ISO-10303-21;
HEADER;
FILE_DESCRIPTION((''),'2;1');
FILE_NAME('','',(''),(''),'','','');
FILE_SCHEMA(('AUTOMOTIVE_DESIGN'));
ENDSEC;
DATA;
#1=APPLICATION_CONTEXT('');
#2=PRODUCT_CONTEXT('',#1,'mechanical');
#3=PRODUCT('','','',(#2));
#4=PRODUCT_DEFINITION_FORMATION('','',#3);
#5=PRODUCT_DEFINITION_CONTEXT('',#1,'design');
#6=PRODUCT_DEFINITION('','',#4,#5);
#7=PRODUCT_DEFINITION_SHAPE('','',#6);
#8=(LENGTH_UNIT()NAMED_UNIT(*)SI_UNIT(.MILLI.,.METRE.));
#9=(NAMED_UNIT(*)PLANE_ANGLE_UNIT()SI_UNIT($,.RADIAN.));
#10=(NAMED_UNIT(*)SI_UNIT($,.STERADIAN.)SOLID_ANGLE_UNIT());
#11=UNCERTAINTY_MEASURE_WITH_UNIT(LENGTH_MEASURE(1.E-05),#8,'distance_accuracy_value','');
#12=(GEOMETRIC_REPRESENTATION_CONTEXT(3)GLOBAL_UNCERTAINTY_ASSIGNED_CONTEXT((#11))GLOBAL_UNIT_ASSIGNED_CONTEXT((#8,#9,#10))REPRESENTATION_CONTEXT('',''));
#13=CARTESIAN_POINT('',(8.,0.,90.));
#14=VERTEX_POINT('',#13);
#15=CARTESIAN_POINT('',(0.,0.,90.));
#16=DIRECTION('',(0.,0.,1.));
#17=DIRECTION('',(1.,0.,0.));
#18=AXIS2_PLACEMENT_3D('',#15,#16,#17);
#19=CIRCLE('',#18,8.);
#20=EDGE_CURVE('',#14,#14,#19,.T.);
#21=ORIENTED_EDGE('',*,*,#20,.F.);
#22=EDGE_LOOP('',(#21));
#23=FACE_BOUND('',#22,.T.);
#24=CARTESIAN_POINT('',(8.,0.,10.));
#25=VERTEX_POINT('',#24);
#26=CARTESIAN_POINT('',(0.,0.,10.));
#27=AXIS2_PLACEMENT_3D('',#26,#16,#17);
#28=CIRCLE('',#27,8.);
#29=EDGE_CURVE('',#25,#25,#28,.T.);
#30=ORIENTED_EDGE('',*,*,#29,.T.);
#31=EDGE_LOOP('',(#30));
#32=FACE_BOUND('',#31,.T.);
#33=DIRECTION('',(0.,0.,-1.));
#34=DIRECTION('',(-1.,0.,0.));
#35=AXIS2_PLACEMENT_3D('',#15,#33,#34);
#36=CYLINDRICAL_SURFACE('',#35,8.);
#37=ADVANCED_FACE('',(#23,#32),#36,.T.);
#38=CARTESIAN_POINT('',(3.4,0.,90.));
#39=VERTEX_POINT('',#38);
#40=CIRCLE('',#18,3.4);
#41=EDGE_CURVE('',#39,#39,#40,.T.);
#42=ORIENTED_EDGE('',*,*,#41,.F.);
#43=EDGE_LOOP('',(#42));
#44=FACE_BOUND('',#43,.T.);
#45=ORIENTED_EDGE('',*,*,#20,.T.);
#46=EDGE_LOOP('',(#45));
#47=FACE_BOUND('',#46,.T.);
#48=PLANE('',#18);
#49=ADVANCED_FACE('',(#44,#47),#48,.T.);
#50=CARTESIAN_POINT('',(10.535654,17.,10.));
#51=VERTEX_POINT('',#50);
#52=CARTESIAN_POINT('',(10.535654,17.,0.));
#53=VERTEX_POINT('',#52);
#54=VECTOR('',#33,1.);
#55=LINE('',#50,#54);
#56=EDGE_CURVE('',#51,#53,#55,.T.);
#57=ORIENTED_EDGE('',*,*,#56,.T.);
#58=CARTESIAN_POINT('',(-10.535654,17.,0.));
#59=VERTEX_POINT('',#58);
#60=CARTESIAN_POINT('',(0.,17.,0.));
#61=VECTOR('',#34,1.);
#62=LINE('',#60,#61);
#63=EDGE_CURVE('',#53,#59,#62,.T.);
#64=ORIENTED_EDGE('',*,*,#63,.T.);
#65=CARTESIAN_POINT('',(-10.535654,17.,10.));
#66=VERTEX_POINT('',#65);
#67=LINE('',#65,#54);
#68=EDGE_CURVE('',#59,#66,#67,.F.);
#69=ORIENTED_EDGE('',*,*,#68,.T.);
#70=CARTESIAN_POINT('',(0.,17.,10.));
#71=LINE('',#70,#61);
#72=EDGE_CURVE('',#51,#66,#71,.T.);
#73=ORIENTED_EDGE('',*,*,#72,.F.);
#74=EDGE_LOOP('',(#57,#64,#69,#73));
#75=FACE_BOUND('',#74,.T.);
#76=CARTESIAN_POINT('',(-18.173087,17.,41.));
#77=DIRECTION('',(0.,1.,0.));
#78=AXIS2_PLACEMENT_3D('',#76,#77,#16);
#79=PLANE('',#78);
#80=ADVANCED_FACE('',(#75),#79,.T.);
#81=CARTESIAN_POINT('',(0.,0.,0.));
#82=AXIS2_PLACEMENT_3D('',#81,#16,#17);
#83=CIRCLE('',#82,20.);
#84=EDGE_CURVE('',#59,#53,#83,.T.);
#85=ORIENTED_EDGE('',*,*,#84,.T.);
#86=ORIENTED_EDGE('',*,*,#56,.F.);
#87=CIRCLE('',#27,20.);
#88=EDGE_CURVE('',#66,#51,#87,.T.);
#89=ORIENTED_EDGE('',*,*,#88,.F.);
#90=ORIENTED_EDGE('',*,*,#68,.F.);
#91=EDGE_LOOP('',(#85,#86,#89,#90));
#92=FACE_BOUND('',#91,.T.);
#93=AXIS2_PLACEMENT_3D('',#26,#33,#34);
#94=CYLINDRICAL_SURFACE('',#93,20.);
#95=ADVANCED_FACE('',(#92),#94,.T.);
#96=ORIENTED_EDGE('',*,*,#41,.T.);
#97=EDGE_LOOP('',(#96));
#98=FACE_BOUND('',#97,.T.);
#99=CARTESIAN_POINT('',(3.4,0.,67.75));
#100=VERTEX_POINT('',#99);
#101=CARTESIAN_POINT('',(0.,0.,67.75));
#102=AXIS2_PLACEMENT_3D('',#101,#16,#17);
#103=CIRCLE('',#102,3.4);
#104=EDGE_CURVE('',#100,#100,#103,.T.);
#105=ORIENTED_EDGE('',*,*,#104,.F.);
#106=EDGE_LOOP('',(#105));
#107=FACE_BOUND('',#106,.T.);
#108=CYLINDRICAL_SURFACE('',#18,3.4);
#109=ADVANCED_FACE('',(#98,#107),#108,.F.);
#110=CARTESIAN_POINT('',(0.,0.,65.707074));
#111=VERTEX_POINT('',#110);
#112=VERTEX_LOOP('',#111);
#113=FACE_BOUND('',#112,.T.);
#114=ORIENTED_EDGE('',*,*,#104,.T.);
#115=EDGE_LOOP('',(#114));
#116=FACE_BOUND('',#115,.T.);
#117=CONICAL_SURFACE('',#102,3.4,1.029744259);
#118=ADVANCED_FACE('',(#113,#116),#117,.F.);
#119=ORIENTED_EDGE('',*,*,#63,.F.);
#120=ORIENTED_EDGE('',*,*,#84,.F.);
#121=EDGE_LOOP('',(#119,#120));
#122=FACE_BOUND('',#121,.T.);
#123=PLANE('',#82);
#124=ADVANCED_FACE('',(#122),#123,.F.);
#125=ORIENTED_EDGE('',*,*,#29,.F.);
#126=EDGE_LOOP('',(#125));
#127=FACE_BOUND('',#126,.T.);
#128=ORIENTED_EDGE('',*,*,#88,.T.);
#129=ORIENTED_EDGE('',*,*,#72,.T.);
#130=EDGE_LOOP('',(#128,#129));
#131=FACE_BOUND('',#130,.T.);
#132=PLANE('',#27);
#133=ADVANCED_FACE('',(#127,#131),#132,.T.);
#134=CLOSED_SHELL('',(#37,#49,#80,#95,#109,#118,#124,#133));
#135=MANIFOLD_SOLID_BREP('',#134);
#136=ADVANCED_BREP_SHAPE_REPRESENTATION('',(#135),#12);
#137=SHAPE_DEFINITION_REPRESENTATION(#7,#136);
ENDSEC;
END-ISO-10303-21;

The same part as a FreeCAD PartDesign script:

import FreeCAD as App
import Part
import Sketcher

V = App.Vector
Q = App.Units.Quantity


def add_polygon(sketch, points):
    """Adds a closed chain of lines whose ends are joined by coincident constraints."""
    first, n = sketch.GeometryCount, len(points)
    for a, b in zip(points, points[1:] + points[:1]):
        sketch.addGeometry(Part.LineSegment(App.Vector(*a, 0), App.Vector(*b, 0)), False)
    for i in range(n):
        sketch.addConstraint(Sketcher.Constraint("Coincident", first + i, 2, first + (i + 1) % n, 1))

doc = App.newDocument("Part")
body = doc.addObject("PartDesign::Body", "Body")

# Sketch on XY plane
sketch1 = doc.addObject("Sketcher::SketchObject", "Sketch")
body.addObject(sketch1)
sketch1.AttachmentSupport = (doc.XY_Plane, [""])
sketch1.MapMode = "FlatFace"
sketch1.addGeometry(Part.Circle(V(0, 0, 0), V(0, 0, 1), 20), False)
sketch1.addConstraint([
    Sketcher.Constraint("Coincident", 0, 3, -1, 1),
    Sketcher.Constraint("Diameter", 0, Q("40 mm")),
])
pad1 = doc.addObject("PartDesign::Pad", "Pad")
body.addObject(pad1)
pad1.Profile = sketch1
pad1.Length = 10

# Sketch on XY plane
sketch2 = doc.addObject("Sketcher::SketchObject", "Sketch001")
body.addObject(sketch2)
sketch2.AttachmentSupport = (doc.XY_Plane, [""])
sketch2.MapMode = "FlatFace"
sketch2.AttachmentOffset = App.Placement(V(0, 0, 10), App.Rotation())
sketch2.addGeometry(Part.Circle(V(0, 0, 0), V(0, 0, 1), 8), False)
sketch2.addConstraint([
    Sketcher.Constraint("Coincident", 0, 3, -1, 1),
    Sketcher.Constraint("Diameter", 0, Q("16 mm")),
])
pad2 = doc.addObject("PartDesign::Pad", "Pad001")
body.addObject(pad2)
pad2.Profile = sketch2
pad2.Length = 80

# Sketch on XY plane
sketch3 = doc.addObject("Sketcher::SketchObject", "Sketch002")
body.addObject(sketch3)
sketch3.AttachmentSupport = (doc.XY_Plane, [""])
sketch3.MapMode = "FlatFace"
add_polygon(sketch3, [(-18, 23), (-18, 17), (18, 17), (18, 23)])  # lines 0-3
sketch3.addConstraint([
    Sketcher.Constraint("Vertical", 0),
    Sketcher.Constraint("Horizontal", 1),
    Sketcher.Constraint("Vertical", 2),
    Sketcher.Constraint("Horizontal", 3),
    Sketcher.Constraint("DistanceY", 0, 2, 0, 1, Q("6 mm")),
    Sketcher.Constraint("DistanceY", -1, 1, 0, 2, Q("17 mm")),
    Sketcher.Constraint("DistanceX", 1, 1, 1, 2, Q("36.346174 mm")),
    Sketcher.Constraint("DistanceX", 0, 2, -1, 1, Q("18.173087 mm")),
])
pocket1 = doc.addObject("PartDesign::Pocket", "Pocket")
body.addObject(pocket1)
pocket1.Profile = sketch3
pocket1.Length = 41
pocket1.Reversed = True

# Sketch on YZ plane
sketch4 = doc.addObject("Sketcher::SketchObject", "Sketch003")
body.addObject(sketch4)
sketch4.AttachmentSupport = (doc.YZ_Plane, [""])
sketch4.MapMode = "FlatFace"
add_polygon(sketch4, [(0, 65.7), (0, 90), (-3.4, 90), (-3.4, 67.8)])  # lines 0-3
sketch4.addConstraint([
    Sketcher.Constraint("Vertical", 0),
    Sketcher.Constraint("Horizontal", 1),
    Sketcher.Constraint("Vertical", 2),
    Sketcher.Constraint("PointOnObject", 0, 2, -2),
    Sketcher.Constraint("Angle", 3, Q("-31 deg")),
    Sketcher.Constraint("DistanceX", 1, 2, 1, 1, Q("3.4 mm")),
    Sketcher.Constraint("DistanceY", -1, 1, 0, 2, Q("90 mm")),
    Sketcher.Constraint("DistanceY", 2, 2, 2, 1, Q("22.25 mm")),
])
groove = doc.addObject("PartDesign::Groove", "Groove")
body.addObject(groove)
groove.Profile = sketch4
groove.ReferenceAxis = (sketch4, ["V_Axis"])
groove.Angle = 360

doc.recompute()
